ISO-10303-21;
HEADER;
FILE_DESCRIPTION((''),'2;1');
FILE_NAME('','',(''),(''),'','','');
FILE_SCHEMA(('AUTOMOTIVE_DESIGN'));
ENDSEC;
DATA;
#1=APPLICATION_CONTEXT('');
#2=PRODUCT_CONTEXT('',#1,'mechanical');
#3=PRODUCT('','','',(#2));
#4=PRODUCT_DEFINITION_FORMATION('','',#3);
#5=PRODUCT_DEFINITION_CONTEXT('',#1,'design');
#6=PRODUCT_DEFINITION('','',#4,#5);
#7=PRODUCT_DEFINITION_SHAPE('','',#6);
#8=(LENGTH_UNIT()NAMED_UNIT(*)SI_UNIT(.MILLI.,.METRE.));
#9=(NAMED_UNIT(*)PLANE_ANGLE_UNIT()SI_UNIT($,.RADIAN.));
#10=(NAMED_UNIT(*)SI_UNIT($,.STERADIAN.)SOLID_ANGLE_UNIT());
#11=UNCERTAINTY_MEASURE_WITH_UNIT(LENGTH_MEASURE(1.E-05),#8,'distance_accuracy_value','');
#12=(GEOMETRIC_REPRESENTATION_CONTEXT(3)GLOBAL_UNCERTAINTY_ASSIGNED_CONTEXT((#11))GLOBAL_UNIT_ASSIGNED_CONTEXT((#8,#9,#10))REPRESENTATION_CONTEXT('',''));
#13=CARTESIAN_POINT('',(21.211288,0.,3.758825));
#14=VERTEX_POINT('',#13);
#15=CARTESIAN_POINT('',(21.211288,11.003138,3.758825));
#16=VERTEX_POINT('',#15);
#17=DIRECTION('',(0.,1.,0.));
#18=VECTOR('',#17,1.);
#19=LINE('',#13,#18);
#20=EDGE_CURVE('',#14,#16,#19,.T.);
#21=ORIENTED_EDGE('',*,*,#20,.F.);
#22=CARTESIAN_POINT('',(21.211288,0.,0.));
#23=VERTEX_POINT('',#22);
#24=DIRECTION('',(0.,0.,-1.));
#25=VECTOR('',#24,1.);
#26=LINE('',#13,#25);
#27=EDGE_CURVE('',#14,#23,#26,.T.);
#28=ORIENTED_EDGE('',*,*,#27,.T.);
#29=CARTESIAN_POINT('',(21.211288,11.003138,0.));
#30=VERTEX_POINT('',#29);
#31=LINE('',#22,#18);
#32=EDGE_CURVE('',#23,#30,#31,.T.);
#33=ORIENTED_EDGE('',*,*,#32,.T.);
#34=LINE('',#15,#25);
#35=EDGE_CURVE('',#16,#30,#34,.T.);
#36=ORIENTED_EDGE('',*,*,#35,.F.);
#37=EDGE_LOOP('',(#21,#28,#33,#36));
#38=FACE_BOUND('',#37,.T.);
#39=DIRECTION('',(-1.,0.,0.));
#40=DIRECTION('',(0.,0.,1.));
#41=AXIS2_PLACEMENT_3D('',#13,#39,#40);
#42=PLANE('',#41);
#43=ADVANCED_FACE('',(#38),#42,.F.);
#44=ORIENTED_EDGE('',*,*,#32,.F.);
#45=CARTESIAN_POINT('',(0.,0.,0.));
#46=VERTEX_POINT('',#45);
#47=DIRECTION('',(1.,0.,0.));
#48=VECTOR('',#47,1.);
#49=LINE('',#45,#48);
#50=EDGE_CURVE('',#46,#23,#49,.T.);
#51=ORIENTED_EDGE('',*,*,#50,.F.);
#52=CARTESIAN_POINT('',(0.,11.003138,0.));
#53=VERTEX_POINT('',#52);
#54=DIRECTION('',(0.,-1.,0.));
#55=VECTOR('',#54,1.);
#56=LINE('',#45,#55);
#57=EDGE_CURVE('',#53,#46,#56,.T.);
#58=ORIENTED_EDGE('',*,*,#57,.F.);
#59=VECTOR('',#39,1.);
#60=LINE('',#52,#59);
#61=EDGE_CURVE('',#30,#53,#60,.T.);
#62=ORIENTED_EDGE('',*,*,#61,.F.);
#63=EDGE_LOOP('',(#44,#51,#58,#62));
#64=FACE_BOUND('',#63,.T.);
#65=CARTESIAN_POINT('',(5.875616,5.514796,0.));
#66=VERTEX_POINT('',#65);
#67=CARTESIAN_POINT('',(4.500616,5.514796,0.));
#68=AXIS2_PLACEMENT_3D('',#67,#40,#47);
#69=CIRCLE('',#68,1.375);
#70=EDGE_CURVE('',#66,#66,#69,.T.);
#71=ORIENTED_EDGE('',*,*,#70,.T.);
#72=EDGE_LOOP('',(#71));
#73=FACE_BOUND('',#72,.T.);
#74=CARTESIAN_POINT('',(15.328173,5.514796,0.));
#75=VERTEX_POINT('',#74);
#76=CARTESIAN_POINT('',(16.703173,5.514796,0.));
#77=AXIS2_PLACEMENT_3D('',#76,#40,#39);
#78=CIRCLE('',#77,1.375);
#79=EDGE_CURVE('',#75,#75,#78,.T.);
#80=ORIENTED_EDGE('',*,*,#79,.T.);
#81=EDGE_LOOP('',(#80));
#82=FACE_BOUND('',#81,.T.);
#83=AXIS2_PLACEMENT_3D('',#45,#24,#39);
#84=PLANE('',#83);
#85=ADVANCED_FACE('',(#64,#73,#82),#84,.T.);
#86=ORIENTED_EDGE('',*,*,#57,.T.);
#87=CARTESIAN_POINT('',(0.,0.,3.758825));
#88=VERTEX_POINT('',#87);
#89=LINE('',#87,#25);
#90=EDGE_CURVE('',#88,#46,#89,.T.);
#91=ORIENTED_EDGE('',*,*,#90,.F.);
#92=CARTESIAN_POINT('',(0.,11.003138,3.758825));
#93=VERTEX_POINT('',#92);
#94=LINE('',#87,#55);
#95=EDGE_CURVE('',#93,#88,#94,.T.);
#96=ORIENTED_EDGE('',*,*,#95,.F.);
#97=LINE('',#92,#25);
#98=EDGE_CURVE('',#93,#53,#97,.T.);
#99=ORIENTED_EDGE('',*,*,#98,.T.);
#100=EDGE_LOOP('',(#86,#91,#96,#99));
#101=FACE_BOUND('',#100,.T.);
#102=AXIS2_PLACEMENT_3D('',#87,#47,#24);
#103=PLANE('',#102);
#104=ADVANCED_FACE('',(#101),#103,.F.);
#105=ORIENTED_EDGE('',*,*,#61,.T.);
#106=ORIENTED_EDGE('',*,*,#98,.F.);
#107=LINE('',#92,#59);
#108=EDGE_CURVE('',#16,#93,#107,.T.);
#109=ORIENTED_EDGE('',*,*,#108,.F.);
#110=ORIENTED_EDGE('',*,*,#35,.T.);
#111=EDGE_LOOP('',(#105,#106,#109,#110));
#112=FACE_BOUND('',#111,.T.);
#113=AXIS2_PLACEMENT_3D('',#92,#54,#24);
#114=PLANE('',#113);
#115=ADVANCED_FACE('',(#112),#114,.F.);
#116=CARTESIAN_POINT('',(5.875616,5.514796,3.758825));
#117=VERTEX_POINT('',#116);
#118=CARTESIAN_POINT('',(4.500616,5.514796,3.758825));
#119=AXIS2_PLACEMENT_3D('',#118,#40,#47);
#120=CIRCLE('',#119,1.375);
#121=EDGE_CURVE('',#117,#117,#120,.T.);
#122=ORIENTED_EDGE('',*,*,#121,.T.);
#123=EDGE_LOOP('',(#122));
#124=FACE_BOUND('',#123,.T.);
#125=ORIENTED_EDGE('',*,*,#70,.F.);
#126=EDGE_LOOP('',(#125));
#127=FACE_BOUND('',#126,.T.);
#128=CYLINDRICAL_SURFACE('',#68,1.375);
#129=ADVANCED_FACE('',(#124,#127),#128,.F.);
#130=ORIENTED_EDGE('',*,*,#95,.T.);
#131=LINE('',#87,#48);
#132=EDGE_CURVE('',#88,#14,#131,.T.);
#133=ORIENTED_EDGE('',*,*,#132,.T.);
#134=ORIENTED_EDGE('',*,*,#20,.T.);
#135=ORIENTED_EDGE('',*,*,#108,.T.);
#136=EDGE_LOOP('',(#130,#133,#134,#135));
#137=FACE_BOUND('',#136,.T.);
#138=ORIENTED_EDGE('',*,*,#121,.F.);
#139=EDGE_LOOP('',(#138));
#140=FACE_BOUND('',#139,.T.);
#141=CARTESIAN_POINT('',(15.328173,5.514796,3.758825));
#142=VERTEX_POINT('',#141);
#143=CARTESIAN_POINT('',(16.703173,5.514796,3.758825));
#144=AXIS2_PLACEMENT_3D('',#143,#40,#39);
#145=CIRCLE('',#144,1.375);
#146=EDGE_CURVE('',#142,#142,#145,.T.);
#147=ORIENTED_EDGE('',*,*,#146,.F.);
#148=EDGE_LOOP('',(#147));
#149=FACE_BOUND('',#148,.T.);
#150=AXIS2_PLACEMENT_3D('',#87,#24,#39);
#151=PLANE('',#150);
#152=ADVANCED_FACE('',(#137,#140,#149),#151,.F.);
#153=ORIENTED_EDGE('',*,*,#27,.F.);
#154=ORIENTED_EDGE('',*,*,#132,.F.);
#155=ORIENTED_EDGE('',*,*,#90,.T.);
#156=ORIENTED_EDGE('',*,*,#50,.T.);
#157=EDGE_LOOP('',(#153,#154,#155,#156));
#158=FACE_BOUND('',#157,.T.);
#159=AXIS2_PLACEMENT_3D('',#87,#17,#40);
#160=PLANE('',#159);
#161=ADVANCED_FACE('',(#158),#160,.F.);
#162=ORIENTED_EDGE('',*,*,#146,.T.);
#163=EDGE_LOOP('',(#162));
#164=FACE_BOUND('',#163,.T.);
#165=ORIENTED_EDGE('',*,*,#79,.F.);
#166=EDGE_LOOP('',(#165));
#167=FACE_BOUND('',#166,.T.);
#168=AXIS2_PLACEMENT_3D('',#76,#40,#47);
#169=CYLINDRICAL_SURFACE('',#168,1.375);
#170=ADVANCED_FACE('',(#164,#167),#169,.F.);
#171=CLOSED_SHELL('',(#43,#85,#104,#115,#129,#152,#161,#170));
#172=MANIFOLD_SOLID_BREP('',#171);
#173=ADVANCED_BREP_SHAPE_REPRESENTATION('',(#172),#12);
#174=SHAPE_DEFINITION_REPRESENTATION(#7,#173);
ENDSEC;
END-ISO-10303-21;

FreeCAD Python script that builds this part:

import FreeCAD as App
import Part
import Sketcher

doc = App.newDocument("Part")
body = doc.addObject("PartDesign::Body", "Body")

# Sketch on XY plane
sketch1 = body.newObject("Sketcher::SketchObject", "Sketch")
sketch1.AttachmentSupport = (doc.getObject("XY_Plane"), [""])
sketch1.MapMode = "FlatFace"
sketch1.addGeometry([
    Part.LineSegment(App.Vector(0, 11, 0), App.Vector(0, 0, 0)),
    Part.LineSegment(App.Vector(0, 0, 0), App.Vector(21, 0, 0)),
    Part.LineSegment(App.Vector(21, 0, 0), App.Vector(21, 11, 0)),
    Part.LineSegment(App.Vector(21, 11, 0), App.Vector(0, 11, 0)),
], False)
sketch1.addConstraint([
    Sketcher.Constraint("Coincident", 0, 2, 1, 1),
    Sketcher.Constraint("Coincident", 1, 2, 2, 1),
    Sketcher.Constraint("Coincident", 2, 2, 3, 1),
    Sketcher.Constraint("Coincident", 3, 2, 0, 1),
    Sketcher.Constraint("Vertical", 0),
    Sketcher.Constraint("Horizontal", 1),
    Sketcher.Constraint("Vertical", 2),
    Sketcher.Constraint("Horizontal", 3),
    Sketcher.Constraint("Coincident", 0, 2, -1, 1),
    Sketcher.Constraint("DistanceY", 0, 2, 0, 1, 11.003138),
    Sketcher.Constraint("DistanceX", 1, 1, 1, 2, 21.211288),
])
pad1 = body.newObject("PartDesign::Pad", "Pad")
pad1.Profile = sketch1
pad1.Length = 3.758825

# Sketch on XY plane
sketch2 = body.newObject("Sketcher::SketchObject", "Sketch001")
sketch2.AttachmentSupport = (doc.getObject("XY_Plane"), [""])
sketch2.MapMode = "FlatFace"
sketch2.AttachmentOffset = App.Placement(App.Vector(0, 0, 3.758825), App.Rotation())
sketch2.addGeometry([
    Part.Circle(App.Vector(4.5, 5.5, 0), App.Vector(0, 0, 1), 1.4),
    Part.Circle(App.Vector(16.7, 5.5, 0), App.Vector(0, 0, 1), 1.4),
], False)
sketch2.addConstraint([
    Sketcher.Constraint("Equal", 0, 1),
    Sketcher.Constraint("Horizontal", 0, 3, 1, 3),
    Sketcher.Constraint("Diameter", 0, 2.75),
    Sketcher.Constraint("DistanceX", -1, 1, 0, 3, 4.500616),
    Sketcher.Constraint("DistanceY", -1, 1, 0, 3, 5.514796),
    Sketcher.Constraint("DistanceX", -1, 1, 1, 3, 16.703173),
])
pocket1 = body.newObject("PartDesign::Pocket", "Pocket")
pocket1.Profile = sketch2
pocket1.Type = "ThroughAll"

doc.recompute()
